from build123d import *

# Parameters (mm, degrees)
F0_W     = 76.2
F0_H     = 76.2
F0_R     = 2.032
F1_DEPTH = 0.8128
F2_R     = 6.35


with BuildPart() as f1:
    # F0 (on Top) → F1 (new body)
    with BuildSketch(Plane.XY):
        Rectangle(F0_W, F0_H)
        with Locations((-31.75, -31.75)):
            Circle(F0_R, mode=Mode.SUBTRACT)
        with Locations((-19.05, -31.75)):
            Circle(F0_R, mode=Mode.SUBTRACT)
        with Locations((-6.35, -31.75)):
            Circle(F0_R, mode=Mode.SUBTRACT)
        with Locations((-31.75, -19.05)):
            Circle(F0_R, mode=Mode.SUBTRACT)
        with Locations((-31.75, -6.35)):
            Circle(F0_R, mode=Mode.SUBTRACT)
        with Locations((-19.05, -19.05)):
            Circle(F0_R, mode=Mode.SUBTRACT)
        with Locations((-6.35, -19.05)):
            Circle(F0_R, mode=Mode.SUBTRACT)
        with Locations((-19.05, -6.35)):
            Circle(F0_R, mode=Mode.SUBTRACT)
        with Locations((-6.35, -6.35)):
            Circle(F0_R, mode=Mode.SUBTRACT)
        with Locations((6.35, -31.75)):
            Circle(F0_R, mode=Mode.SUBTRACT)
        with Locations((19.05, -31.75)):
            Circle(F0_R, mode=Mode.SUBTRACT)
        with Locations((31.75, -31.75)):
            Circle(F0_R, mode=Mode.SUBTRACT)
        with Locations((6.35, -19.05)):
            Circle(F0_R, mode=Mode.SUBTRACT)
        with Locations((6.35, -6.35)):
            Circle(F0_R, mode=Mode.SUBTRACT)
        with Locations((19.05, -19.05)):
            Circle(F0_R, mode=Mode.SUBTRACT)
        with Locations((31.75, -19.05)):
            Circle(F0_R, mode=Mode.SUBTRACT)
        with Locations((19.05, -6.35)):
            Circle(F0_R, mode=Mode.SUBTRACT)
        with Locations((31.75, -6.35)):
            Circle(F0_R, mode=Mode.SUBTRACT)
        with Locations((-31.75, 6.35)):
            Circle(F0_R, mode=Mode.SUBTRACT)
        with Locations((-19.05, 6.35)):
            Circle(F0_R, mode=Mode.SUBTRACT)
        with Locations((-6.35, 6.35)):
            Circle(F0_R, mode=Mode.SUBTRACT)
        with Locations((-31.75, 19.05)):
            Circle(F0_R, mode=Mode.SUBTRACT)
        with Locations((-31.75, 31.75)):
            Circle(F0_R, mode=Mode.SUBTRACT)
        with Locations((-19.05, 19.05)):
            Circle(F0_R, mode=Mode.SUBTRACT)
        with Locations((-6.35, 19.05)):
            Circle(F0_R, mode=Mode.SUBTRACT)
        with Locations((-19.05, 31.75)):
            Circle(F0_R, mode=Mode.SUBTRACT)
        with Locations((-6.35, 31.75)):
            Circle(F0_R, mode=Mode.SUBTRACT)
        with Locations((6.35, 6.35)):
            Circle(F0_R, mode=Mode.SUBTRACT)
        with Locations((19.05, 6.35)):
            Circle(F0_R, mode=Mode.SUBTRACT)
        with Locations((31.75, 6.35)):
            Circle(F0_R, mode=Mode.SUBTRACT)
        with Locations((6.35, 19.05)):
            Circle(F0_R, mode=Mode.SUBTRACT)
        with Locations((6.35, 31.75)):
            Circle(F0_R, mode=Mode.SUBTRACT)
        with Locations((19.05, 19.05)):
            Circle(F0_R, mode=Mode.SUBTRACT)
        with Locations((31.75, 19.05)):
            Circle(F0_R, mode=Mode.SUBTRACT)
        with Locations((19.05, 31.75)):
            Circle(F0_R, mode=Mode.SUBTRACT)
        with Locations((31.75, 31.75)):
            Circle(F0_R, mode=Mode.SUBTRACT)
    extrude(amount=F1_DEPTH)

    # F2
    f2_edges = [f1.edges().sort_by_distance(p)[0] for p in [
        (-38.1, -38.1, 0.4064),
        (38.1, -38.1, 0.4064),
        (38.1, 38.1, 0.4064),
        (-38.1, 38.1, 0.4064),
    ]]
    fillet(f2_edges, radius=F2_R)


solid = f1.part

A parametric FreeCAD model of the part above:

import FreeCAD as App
import Part
import Sketcher
from FreeCAD import Vector
Q = App.Units.Quantity


def edges_at(feature, points):
    """Names of the edges that pass closest to the given points."""
    edges = feature.Shape.Edges
    near = lambda p: min(range(len(edges)), key=lambda i: edges[i].distToShape(Part.Vertex(*p))[0])
    return sorted({f"Edge{near(p) + 1}" for p in points})

doc = App.newDocument("Part")
params = doc.addObject("Spreadsheet::Sheet", "Params")
for row, (alias, value) in enumerate([
    ("sketch1_diameter", "0.16 in"),
    ("sketch1_width", "3 in"),
    ("pad1_length", "0.032 in"),
    ("fillet_radius", "0.25 in"),
], start=1):
    params.set(f"A{row}", alias)
    params.set(f"B{row}", "=" + value)
    params.setAlias(f"B{row}", alias)

body = doc.addObject("PartDesign::Body", "Body")

sketch1 = doc.addObject("Sketcher::SketchObject", "Sketch")
body.addObject(sketch1)
sketch1.AttachmentSupport = (doc.XY_Plane, [""])
sketch1.MapMode = "FlatFace"
sketch1.addGeometry([
    Part.LineSegment(Vector(-38.1, 38.1, 0), Vector(-38.1, -38.1, 0)),
    Part.LineSegment(Vector(-38.1, -38.1, 0), Vector(38.1, -38.1, 0)),
    Part.LineSegment(Vector(38.1, -38.1, 0), Vector(38.1, 38.1, 0)),
    Part.LineSegment(Vector(38.1, 38.1, 0), Vector(-38.1, 38.1, 0)),
    Part.Circle(Vector(-31.75, -31.75, 0), Vector(0, 0, 1), 2.032),
    Part.Circle(Vector(-19.05, -31.75, 0), Vector(0, 0, 1), 2.032),
    Part.Circle(Vector(-31.75, -19.05, 0), Vector(0, 0, 1), 2.032),
    Part.Circle(Vector(-19.05, -19.05, 0), Vector(0, 0, 1), 2.032),
    Part.Circle(Vector(-6.35, -31.75, 0), Vector(0, 0, 1), 2.032),
    Part.Circle(Vector(-6.35, -19.05, 0), Vector(0, 0, 1), 2.032),
    Part.Circle(Vector(-31.75, -6.35, 0), Vector(0, 0, 1), 2.032),
    Part.Circle(Vector(-19.05, -6.35, 0), Vector(0, 0, 1), 2.032),
    Part.Circle(Vector(-6.35, -6.35, 0), Vector(0, 0, 1), 2.032),
    Part.Circle(Vector(6.35, -31.75, 0), Vector(0, 0, 1), 2.032),
    Part.Circle(Vector(6.35, -19.05, 0), Vector(0, 0, 1), 2.032),
    Part.Circle(Vector(19.05, -31.75, 0), Vector(0, 0, 1), 2.032),
    Part.Circle(Vector(31.75, -31.75, 0), Vector(0, 0, 1), 2.032),
    Part.Circle(Vector(19.05, -19.05, 0), Vector(0, 0, 1), 2.032),
    Part.Circle(Vector(31.75, -19.05, 0), Vector(0, 0, 1), 2.032),
    Part.Circle(Vector(6.35, -6.35, 0), Vector(0, 0, 1), 2.032),
    Part.Circle(Vector(19.05, -6.35, 0), Vector(0, 0, 1), 2.032),
    Part.Circle(Vector(31.75, -6.35, 0), Vector(0, 0, 1), 2.032),
    Part.Circle(Vector(-31.75, 6.35, 0), Vector(0, 0, 1), 2.032),
    Part.Circle(Vector(-19.05, 6.35, 0), Vector(0, 0, 1), 2.032),
    Part.Circle(Vector(-6.35, 6.35, 0), Vector(0, 0, 1), 2.032),
    Part.Circle(Vector(-31.75, 19.05, 0), Vector(0, 0, 1), 2.032),
    Part.Circle(Vector(-19.05, 19.05, 0), Vector(0, 0, 1), 2.032),
    Part.Circle(Vector(-31.75, 31.75, 0), Vector(0, 0, 1), 2.032),
    Part.Circle(Vector(-19.05, 31.75, 0), Vector(0, 0, 1), 2.032),
    Part.Circle(Vector(-6.35, 19.05, 0), Vector(0, 0, 1), 2.032),
    Part.Circle(Vector(-6.35, 31.75, 0), Vector(0, 0, 1), 2.032),
    Part.Circle(Vector(6.35, 6.35, 0), Vector(0, 0, 1), 2.032),
    Part.Circle(Vector(19.05, 6.35, 0), Vector(0, 0, 1), 2.032),
    Part.Circle(Vector(31.75, 6.35, 0), Vector(0, 0, 1), 2.032),
    Part.Circle(Vector(6.35, 19.05, 0), Vector(0, 0, 1), 2.032),
    Part.Circle(Vector(6.35, 31.75, 0), Vector(0, 0, 1), 2.032),
    Part.Circle(Vector(19.05, 19.05, 0), Vector(0, 0, 1), 2.032),
    Part.Circle(Vector(31.75, 19.05, 0), Vector(0, 0, 1), 2.032),
    Part.Circle(Vector(19.05, 31.75, 0), Vector(0, 0, 1), 2.032),
    Part.Circle(Vector(31.75, 31.75, 0), Vector(0, 0, 1), 2.032),
], False)
sketch1.addConstraint([
    Sketcher.Constraint("Coincident", 0, 2, 1, 1),
    Sketcher.Constraint("Coincident", 1, 2, 2, 1),
    Sketcher.Constraint("Coincident", 2, 2, 3, 1),
    Sketcher.Constraint("Coincident", 3, 2, 0, 1),
    Sketcher.Constraint("Vertical", 0),
    Sketcher.Constraint("Horizontal", 1),
    Sketcher.Constraint("Vertical", 2),
    Sketcher.Constraint("Horizontal", 3),
    Sketcher.Constraint("Equal", 4, 5),
    Sketcher.Constraint("Equal", 5, 6),
    Sketcher.Constraint("Equal", 6, 7),
    Sketcher.Constraint("Equal", 7, 8),
    Sketcher.Constraint("Equal", 8, 9),
    Sketcher.Constraint("Equal", 9, 10),
    Sketcher.Constraint("Equal", 10, 11),
    Sketcher.Constraint("Equal", 11, 12),
    Sketcher.Constraint("Equal", 12, 13),
    Sketcher.Constraint("Equal", 13, 14),
    Sketcher.Constraint("Equal", 14, 15),
    Sketcher.Constraint("Equal", 15, 16),
    Sketcher.Constraint("Equal", 16, 17),
    Sketcher.Constraint("Equal", 17, 18),
    Sketcher.Constraint("Equal", 18, 19),
    Sketcher.Constraint("Equal", 19, 20),
    Sketcher.Constraint("Equal", 20, 21),
    Sketcher.Constraint("Equal", 21, 22),
    Sketcher.Constraint("Equal", 22, 23),
    Sketcher.Constraint("Equal", 23, 24),
    Sketcher.Constraint("Equal", 24, 25),
    Sketcher.Constraint("Equal", 25, 26),
    Sketcher.Constraint("Equal", 26, 27),
    Sketcher.Constraint("Equal", 27, 28),
    Sketcher.Constraint("Equal", 28, 29),
    Sketcher.Constraint("Equal", 29, 30),
    Sketcher.Constraint("Equal", 30, 31),
    Sketcher.Constraint("Equal", 31, 32),
    Sketcher.Constraint("Equal", 32, 33),
    Sketcher.Constraint("Equal", 33, 34),
    Sketcher.Constraint("Equal", 34, 35),
    Sketcher.Constraint("Equal", 35, 36),
    Sketcher.Constraint("Equal", 36, 37),
    Sketcher.Constraint("Equal", 37, 38),
    Sketcher.Constraint("Equal", 38, 39),
    Sketcher.Constraint("Symmetric", 21, 3, 22, 3, -1, 1),
    Sketcher.Constraint("Symmetric", 20, 3, 23, 3, -1, 1),
    Sketcher.Constraint("Symmetric", 19, 3, 24, 3, -1, 1),
    Sketcher.Constraint("Symmetric", 18, 3, 25, 3, -1, 1),
    Sketcher.Constraint("Symmetric", 17, 3, 26, 3, -1, 1),
    Sketcher.Constraint("Symmetric", 16, 3, 27, 3, -1, 1),
    Sketcher.Constraint("Symmetric", 15, 3, 28, 3, -1, 1),
    Sketcher.Constraint("Symmetric", 14, 3, 29, 3, -1, 1),
    Sketcher.Constraint("Symmetric", 13, 3, 30, 3, -1, 1),
    Sketcher.Constraint("Symmetric", 12, 3, 31, 3, -1, 1),
    Sketcher.Constraint("Symmetric", 11, 3, 32, 3, -1, 1),
    Sketcher.Constraint("Symmetric", 10, 3, 33, 3, -1, 1),
    Sketcher.Constraint("Symmetric", 9, 3, 34, 3, -1, 1),
    Sketcher.Constraint("Symmetric", 8, 3, 35, 3, -1, 1),
    Sketcher.Constraint("Symmetric", 7, 3, 36, 3, -1, 1),
    Sketcher.Constraint("Symmetric", 6, 3, 37, 3, -1, 1),
    Sketcher.Constraint("Symmetric", 5, 3, 38, 3, -1, 1),
    Sketcher.Constraint("Symmetric", 4, 3, 39, 3, -1, 1),
    Sketcher.Constraint("Symmetric", 0, 2, 2, 2, -1, 1),
    Sketcher.Constraint("Symmetric", 8, 3, 13, 3, -2),
    Sketcher.Constraint("Symmetric", 9, 3, 14, 3, -2),
    Sketcher.Constraint("Symmetric", 5, 3, 15, 3, -2),
    Sketcher.Constraint("Symmetric", 4, 3, 16, 3, -2),
    Sketcher.Constraint("Symmetric", 7, 3, 17, 3, -2),
    Sketcher.Constraint("Symmetric", 6, 3, 18, 3, -2),
    Sketcher.Constraint("Symmetric", 12, 3, 19, 3, -2),
    Sketcher.Constraint("Symmetric", 11, 3, 20, 3, -2),
    Sketcher.Constraint("Symmetric", 10, 3, 21, 3, -2),
    Sketcher.Constraint("Horizontal", 4, 3, 5, 3),
    Sketcher.Constraint("Horizontal", 6, 3, 7, 3),
    Sketcher.Constraint("Horizontal", 5, 3, 8, 3),
    Sketcher.Constraint("Horizontal", 7, 3, 9, 3),
    Sketcher.Constraint("Horizontal", 10, 3, 11, 3),
    Sketcher.Constraint("Horizontal", 11, 3, 12, 3),
    Sketcher.Constraint("Vertical", 4, 3, 6, 3),
    Sketcher.Constraint("Vertical", 5, 3, 7, 3),
    Sketcher.Constraint("Vertical", 8, 3, 9, 3),
    Sketcher.Constraint("Vertical", 6, 3, 10, 3),
    Sketcher.Constraint("Vertical", 7, 3, 11, 3),
    Sketcher.Constraint("Vertical", 9, 3, 12, 3),
    Sketcher.Constraint("Equal", 3, 0),
    Sketcher.Constraint("Diameter", 4, Q("0.16 in")),
    Sketcher.Constraint("DistanceX", 1, 1, 1, 2, Q("3 in")),
    Sketcher.Constraint("DistanceX", 4, 3, 8, 3, Q("1 in")),
    Sketcher.Constraint("DistanceY", 4, 3, 10, 3, Q("1 in")),
    Sketcher.Constraint("DistanceX", 5, 3, 13, 3, Q("1 in")),
    Sketcher.Constraint("DistanceY", 6, 3, 22, 3, Q("1 in")),
    Sketcher.Constraint("DistanceX", 4, 3, 5, 3, Q("0.5 in")),
    Sketcher.Constraint("DistanceY", 4, 3, 6, 3, Q("0.5 in")),
])
sketch1.setExpression("Constraints[84]", "Params.sketch1_diameter")
sketch1.setExpression("Constraints[85]", "Params.sketch1_width")
pad1 = doc.addObject("PartDesign::Pad", "Pad")
body.addObject(pad1)
pad1.Profile = sketch1
pad1.setExpression("Length", "Params.pad1_length")
doc.recompute()

fillet = doc.addObject("PartDesign::Fillet", "Fillet")
body.addObject(fillet)
fillet.Base = (pad1, edges_at(pad1, [
    (-38.1, -38.1, 0.406),
    (38.1, -38.1, 0.406),
    (38.1, 38.1, 0.406),
    (-38.1, 38.1, 0.406),
]))
fillet.setExpression("Radius", "Params.fillet_radius")

doc.recompute()
